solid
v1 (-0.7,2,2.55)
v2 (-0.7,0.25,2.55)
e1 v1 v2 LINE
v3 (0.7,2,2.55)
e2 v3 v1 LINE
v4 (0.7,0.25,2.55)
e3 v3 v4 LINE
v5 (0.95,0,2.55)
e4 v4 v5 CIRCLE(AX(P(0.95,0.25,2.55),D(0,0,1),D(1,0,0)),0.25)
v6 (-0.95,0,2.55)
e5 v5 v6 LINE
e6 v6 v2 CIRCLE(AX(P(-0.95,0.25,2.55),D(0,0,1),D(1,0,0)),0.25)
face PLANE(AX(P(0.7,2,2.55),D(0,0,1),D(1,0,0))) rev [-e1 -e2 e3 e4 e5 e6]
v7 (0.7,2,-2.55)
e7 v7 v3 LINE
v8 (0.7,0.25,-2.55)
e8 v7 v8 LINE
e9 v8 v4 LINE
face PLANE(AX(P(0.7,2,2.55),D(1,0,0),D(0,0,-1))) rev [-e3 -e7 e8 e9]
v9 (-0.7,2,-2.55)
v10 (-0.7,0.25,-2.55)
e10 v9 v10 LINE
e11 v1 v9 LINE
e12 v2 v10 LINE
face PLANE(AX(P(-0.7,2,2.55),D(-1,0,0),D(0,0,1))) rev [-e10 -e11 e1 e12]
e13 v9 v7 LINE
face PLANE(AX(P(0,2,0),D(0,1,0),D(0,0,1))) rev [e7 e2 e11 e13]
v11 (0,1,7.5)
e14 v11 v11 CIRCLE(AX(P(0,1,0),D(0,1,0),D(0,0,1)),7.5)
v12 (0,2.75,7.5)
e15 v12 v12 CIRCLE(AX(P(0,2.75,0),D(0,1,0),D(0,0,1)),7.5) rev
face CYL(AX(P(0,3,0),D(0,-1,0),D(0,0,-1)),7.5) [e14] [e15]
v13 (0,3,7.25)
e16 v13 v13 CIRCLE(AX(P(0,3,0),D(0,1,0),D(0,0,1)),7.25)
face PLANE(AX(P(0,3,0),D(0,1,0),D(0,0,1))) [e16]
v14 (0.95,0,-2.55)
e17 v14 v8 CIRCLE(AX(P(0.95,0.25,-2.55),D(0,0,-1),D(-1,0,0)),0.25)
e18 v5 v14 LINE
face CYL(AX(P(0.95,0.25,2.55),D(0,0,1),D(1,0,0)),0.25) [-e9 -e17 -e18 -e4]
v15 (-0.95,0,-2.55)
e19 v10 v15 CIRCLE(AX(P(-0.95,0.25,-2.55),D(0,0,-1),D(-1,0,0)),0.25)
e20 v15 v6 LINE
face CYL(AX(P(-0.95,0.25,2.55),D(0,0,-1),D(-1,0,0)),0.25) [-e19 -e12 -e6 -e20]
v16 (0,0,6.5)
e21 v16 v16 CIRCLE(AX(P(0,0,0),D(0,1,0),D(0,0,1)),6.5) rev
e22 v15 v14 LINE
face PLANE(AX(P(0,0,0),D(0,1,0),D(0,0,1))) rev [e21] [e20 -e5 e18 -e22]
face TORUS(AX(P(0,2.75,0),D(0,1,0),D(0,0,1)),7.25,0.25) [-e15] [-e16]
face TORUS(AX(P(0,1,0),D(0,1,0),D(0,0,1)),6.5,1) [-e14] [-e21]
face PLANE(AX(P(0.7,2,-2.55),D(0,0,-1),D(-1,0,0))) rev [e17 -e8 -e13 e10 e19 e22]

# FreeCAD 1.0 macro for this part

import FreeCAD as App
import Part
import Sketcher

V = App.Vector
Q = App.Units.Quantity


def edges_at(feature, points):
    """Names of the edges that pass closest to the given points."""
    edges = feature.Shape.Edges
    near = lambda p: min(range(len(edges)), key=lambda i: edges[i].distToShape(Part.Vertex(*p))[0])
    return sorted({f"Edge{near(p) + 1}" for p in points})

doc = App.newDocument("Part")
params = doc.addObject("Spreadsheet::Sheet", "Params")
for row, (alias, value) in enumerate([
    ("sketch1_diameter", "15 mm"),
    ("pad1_length", "3 mm"),
    ("fillet_radius", "1 mm"),
    ("sketch2_width", "1.4 mm"),
    ("sketch2_height", "5.1 mm"),
    ("pocket1_length", "2 mm"),
    ("fillet2_radius", "0.25 mm"),
], start=1):
    params.set(f"A{row}", alias)
    params.set(f"B{row}", "=" + value)
    params.setAlias(f"B{row}", alias)

body = doc.addObject("PartDesign::Body", "Body")

sketch1 = doc.addObject("Sketcher::SketchObject", "Sketch")
body.addObject(sketch1)
sketch1.AttachmentSupport = (doc.XZ_Plane, [""])
sketch1.MapMode = "FlatFace"
sketch1.addGeometry(Part.Circle(V(0, 0, 0), V(0, 0, 1), 7.5), False)
sketch1.addConstraint([
    Sketcher.Constraint("Coincident", 0, 3, -1, 1),
    Sketcher.Constraint("Diameter", 0, Q("15 mm")),
])
sketch1.setExpression("Constraints[1]", "Params.sketch1_diameter")
pad1 = doc.addObject("PartDesign::Pad", "Pad")
body.addObject(pad1)
pad1.Profile = sketch1
pad1.setExpression("Length", "Params.pad1_length")
pad1.Reversed = True
doc.recompute()

fillet = doc.addObject("PartDesign::Fillet", "Fillet")
body.addObject(fillet)
fillet.Base = (pad1, edges_at(pad1, [(0, 0, -7.5)]))
fillet.setExpression("Radius", "Params.fillet_radius")

sketch2 = doc.addObject("Sketcher::SketchObject", "Sketch001")
body.addObject(sketch2)
sketch2.AttachmentSupport = (doc.XZ_Plane, [""])
sketch2.MapMode = "FlatFace"
sketch2.addGeometry([
    Part.LineSegment(V(-0.7, 2.55, 0), V(-0.7, -2.55, 0)),
    Part.LineSegment(V(-0.7, -2.55, 0), V(0.7, -2.55, 0)),
    Part.LineSegment(V(0.7, -2.55, 0), V(0.7, 2.55, 0)),
    Part.LineSegment(V(0.7, 2.55, 0), V(-0.7, 2.55, 0)),
], False)
sketch2.addConstraint([
    Sketcher.Constraint("Coincident", 0, 2, 1, 1),
    Sketcher.Constraint("Coincident", 1, 2, 2, 1),
    Sketcher.Constraint("Coincident", 2, 2, 3, 1),
    Sketcher.Constraint("Coincident", 3, 2, 0, 1),
    Sketcher.Constraint("Vertical", 0),
    Sketcher.Constraint("Horizontal", 1),
    Sketcher.Constraint("Vertical", 2),
    Sketcher.Constraint("Horizontal", 3),
    Sketcher.Constraint("Symmetric", 0, 2, 2, 2, -1, 1),
    Sketcher.Constraint("DistanceX", 1, 1, 1, 2, Q("1.4 mm")),
    Sketcher.Constraint("DistanceY", 0, 2, 0, 1, Q("5.1 mm")),
])
sketch2.setExpression("Constraints[9]", "Params.sketch2_width")
sketch2.setExpression("Constraints[10]", "Params.sketch2_height")
pocket1 = doc.addObject("PartDesign::Pocket", "Pocket")
body.addObject(pocket1)
pocket1.Profile = sketch2
pocket1.setExpression("Length", "Params.pocket1_length")
doc.recompute()

fillet2 = doc.addObject("PartDesign::Fillet", "Fillet001")
body.addObject(fillet2)
fillet2.Base = (pocket1, edges_at(pocket1, [(-0.7, 0, 0), (0.7, 0, 0), (0, 3, -7.5)]))
fillet2.setExpression("Radius", "Params.fillet2_radius")

doc.recompute()
